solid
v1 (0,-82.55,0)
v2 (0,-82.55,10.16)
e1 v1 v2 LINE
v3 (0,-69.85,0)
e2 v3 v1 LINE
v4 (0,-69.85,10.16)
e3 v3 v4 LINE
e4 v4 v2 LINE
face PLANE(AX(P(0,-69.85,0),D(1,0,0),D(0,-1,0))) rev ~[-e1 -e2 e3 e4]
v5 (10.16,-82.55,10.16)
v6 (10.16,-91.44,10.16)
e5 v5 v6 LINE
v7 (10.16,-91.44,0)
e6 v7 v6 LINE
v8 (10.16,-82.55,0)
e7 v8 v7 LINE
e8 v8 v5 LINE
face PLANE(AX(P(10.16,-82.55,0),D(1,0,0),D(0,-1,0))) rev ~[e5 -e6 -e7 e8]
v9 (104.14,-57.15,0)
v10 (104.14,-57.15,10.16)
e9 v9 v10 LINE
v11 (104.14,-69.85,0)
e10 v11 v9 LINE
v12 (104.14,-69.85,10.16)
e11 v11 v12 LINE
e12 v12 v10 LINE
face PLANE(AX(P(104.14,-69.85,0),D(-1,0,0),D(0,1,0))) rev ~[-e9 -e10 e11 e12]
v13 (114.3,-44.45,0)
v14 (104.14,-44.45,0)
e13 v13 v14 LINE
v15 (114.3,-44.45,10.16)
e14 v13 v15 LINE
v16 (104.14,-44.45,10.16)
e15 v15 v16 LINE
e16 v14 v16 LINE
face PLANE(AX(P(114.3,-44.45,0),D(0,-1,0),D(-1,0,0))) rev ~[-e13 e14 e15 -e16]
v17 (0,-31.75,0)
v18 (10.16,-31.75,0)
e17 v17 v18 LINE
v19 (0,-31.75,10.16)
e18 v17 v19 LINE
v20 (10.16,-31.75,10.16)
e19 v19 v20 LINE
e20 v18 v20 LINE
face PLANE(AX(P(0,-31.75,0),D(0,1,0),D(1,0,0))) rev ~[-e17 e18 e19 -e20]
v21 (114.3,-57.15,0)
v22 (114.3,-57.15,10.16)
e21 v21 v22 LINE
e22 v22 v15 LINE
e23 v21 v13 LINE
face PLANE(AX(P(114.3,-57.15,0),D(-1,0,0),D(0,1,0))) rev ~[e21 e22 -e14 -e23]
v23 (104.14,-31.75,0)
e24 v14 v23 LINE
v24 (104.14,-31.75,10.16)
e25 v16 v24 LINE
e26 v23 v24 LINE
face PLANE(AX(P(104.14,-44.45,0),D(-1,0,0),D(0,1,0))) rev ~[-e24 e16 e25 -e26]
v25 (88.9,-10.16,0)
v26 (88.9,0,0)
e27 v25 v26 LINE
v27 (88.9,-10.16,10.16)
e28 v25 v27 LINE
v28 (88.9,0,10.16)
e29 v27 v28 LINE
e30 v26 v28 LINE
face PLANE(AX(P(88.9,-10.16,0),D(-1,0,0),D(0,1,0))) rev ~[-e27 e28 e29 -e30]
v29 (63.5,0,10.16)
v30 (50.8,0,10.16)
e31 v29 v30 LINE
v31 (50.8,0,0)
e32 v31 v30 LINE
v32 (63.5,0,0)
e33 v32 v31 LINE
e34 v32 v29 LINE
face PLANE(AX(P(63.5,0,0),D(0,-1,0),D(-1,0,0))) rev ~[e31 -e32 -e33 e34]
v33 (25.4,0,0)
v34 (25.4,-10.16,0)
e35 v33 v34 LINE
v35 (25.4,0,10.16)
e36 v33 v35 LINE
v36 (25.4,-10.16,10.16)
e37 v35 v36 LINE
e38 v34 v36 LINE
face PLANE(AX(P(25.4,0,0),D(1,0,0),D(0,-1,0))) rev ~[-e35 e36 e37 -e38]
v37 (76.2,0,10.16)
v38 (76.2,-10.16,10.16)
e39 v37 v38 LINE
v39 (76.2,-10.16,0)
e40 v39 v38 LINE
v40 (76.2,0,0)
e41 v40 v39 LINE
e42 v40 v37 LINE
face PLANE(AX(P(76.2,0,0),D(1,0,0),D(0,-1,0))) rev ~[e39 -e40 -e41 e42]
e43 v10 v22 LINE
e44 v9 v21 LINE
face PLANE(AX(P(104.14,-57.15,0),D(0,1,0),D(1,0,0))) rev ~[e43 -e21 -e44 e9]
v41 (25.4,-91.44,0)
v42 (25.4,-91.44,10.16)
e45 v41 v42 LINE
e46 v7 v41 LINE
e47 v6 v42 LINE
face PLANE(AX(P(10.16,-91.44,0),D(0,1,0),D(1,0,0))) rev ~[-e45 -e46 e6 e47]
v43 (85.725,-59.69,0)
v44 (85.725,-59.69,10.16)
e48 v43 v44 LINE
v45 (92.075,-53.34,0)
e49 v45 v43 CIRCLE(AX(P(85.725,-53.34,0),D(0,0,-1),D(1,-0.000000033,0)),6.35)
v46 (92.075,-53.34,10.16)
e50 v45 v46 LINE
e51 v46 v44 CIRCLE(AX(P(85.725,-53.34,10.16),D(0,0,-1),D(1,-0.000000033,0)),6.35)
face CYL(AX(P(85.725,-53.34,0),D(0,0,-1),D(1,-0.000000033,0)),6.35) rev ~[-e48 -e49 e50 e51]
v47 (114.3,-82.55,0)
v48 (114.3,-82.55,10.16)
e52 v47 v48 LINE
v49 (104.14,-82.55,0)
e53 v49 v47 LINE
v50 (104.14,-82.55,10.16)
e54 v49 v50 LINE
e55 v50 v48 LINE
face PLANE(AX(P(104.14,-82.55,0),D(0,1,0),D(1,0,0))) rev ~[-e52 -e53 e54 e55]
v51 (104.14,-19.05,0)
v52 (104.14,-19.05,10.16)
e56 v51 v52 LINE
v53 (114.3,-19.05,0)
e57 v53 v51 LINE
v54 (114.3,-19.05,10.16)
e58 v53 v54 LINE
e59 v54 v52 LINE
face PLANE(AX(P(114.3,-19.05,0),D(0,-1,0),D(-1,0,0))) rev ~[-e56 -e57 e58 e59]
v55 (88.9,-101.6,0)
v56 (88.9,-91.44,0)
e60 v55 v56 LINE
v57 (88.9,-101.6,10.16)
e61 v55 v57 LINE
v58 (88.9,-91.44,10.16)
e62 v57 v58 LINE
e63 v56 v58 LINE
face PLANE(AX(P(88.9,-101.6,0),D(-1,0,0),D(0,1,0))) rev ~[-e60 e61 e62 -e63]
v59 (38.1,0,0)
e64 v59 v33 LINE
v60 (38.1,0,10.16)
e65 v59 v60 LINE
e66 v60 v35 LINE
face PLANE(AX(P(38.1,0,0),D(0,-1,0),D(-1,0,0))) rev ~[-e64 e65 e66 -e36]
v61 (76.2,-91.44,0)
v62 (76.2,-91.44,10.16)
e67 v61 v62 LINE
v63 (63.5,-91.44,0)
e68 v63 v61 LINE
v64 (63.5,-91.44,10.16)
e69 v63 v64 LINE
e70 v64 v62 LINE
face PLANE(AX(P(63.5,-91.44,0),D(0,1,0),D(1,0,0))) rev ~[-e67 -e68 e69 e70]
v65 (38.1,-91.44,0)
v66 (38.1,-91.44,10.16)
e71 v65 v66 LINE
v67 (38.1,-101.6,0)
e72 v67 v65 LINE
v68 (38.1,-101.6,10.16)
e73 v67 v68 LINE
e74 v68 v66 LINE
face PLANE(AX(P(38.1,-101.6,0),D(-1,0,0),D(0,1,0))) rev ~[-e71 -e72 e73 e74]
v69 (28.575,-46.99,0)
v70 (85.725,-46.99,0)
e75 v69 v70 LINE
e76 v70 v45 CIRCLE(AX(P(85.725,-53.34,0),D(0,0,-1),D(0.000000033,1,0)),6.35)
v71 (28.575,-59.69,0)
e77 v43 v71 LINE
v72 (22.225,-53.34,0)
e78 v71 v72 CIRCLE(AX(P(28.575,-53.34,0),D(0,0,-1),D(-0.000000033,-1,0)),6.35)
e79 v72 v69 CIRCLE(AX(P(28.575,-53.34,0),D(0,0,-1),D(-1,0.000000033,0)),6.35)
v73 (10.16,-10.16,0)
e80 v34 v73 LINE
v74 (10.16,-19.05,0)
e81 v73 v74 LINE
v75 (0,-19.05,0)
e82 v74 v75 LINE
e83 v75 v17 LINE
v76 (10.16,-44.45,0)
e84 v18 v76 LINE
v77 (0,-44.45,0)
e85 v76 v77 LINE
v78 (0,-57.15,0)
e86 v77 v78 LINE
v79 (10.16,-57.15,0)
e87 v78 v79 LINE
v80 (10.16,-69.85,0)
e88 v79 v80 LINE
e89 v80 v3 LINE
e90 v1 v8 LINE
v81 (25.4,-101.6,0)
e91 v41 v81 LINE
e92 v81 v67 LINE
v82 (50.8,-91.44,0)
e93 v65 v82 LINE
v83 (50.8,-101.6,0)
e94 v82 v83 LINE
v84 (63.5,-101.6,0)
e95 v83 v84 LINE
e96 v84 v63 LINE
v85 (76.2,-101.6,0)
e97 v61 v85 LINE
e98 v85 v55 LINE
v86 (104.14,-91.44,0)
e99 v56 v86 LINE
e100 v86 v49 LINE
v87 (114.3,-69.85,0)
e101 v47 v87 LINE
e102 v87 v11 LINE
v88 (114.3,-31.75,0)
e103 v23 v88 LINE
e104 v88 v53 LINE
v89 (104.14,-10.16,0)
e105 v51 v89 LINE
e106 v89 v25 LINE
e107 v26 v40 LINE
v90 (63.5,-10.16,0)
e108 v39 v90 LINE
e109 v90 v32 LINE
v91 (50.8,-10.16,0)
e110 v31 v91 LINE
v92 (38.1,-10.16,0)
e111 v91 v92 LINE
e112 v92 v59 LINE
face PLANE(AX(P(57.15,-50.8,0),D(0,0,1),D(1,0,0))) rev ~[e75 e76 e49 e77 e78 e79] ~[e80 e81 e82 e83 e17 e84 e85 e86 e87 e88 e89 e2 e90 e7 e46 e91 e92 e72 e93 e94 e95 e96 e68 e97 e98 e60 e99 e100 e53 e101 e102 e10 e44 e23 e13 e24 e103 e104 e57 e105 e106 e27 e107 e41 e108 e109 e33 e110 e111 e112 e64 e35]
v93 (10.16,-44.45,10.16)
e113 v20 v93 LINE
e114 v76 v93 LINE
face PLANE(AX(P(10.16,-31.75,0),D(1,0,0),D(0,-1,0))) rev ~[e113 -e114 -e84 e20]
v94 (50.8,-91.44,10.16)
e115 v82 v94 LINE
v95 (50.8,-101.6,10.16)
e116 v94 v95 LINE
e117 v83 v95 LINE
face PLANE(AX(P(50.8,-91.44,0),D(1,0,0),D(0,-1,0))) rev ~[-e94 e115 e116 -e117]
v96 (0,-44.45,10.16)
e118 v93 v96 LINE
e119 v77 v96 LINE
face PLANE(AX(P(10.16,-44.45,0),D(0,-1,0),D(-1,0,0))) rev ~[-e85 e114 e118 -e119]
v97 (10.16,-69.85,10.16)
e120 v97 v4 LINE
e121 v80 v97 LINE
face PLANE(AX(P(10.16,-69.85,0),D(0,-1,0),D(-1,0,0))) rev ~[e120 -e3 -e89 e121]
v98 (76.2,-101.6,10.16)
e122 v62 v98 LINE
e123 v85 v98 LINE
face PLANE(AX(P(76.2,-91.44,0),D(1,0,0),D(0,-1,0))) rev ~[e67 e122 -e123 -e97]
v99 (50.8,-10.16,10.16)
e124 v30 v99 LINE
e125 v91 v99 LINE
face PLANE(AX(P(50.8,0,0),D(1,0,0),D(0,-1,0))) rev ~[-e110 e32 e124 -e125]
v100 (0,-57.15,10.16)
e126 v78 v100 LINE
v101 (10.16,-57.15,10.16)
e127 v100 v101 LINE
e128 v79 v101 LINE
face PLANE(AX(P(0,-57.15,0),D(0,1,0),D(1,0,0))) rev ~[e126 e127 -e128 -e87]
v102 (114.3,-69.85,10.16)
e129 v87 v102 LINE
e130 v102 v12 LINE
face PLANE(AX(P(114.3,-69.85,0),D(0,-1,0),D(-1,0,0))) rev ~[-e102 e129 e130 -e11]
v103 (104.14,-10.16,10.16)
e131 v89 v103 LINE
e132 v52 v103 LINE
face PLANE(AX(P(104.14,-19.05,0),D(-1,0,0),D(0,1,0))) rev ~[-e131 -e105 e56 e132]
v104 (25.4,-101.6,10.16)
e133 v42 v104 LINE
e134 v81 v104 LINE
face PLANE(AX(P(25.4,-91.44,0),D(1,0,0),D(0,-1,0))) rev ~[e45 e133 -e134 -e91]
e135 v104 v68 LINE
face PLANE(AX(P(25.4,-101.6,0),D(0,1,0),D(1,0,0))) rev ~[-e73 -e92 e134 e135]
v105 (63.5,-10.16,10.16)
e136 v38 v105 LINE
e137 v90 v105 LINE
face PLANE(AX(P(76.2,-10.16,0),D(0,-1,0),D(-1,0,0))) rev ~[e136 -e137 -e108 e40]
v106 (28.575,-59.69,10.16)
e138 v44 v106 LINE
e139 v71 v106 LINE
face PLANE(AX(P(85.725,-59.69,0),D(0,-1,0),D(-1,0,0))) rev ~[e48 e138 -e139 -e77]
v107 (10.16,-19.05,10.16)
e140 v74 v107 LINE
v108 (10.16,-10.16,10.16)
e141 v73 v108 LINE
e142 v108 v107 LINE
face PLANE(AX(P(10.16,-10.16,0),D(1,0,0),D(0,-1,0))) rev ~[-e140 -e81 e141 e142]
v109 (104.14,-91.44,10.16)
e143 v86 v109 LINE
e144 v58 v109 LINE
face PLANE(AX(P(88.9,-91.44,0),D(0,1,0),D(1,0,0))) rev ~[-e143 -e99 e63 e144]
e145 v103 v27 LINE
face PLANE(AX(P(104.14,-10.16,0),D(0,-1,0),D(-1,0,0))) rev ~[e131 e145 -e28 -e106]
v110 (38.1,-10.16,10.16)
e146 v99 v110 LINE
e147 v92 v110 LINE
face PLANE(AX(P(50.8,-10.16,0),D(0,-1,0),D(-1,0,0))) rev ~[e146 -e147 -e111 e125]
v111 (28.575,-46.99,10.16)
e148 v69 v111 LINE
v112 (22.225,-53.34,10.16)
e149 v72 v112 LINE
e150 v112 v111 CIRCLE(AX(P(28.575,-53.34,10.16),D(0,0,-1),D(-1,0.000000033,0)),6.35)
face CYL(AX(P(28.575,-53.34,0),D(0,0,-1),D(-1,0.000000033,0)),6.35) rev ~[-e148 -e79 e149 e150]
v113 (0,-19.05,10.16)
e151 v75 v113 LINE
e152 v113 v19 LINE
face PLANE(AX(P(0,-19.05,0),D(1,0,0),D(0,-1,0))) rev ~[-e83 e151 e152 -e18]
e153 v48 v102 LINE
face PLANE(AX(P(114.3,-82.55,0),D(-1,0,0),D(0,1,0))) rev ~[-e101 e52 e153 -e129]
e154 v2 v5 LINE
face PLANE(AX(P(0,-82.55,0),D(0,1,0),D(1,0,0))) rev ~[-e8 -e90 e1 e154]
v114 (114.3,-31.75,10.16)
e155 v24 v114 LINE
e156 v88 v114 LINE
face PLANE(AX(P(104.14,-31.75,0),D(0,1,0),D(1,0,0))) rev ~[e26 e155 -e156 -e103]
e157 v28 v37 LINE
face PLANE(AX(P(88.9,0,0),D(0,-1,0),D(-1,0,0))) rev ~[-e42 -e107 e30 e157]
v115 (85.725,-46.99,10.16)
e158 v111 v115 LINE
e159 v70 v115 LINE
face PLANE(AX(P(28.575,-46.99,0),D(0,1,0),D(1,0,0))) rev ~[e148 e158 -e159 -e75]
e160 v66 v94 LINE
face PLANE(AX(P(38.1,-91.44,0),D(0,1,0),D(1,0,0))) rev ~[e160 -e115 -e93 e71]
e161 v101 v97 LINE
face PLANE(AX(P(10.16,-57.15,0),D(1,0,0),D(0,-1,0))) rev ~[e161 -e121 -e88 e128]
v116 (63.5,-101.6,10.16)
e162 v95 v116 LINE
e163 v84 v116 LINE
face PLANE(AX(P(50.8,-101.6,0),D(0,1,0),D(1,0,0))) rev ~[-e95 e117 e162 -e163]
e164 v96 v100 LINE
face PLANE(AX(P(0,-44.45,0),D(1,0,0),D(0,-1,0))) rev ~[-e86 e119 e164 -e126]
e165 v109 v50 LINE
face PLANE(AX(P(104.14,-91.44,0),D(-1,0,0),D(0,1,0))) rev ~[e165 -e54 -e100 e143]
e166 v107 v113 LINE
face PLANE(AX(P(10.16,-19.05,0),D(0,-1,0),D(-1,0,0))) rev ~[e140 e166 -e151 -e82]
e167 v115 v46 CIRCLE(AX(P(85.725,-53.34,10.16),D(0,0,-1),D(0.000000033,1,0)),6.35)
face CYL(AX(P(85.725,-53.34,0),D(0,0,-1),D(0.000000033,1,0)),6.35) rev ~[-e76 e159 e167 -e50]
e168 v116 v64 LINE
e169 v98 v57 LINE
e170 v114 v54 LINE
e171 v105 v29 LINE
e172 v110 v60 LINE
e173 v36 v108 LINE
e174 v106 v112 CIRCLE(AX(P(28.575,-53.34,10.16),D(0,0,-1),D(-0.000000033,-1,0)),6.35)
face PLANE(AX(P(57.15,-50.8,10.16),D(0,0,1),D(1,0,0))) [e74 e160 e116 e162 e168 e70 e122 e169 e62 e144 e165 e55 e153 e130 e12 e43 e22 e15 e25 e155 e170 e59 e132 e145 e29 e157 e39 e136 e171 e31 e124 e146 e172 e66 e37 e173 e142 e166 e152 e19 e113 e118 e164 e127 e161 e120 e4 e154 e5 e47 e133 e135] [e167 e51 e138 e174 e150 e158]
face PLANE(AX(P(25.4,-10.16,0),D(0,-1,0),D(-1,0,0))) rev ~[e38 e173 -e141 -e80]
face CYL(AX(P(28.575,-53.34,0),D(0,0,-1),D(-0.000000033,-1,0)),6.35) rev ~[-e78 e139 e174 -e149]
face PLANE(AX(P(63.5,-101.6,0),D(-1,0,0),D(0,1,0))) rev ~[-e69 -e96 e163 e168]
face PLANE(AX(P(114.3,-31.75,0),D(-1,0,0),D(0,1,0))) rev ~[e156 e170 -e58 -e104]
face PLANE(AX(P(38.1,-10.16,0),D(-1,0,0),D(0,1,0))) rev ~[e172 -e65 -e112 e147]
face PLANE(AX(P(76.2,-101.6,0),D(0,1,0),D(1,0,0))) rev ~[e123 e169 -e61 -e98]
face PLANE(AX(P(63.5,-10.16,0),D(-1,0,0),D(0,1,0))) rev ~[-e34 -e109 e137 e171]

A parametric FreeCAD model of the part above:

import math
import FreeCAD as App
import Part
import Sketcher
from FreeCAD import Vector
Q = App.Units.Quantity


def add_polygon(sketch, points):
    """Adds a closed chain of lines whose ends are joined by coincident constraints."""
    first, n = sketch.GeometryCount, len(points)
    for a, b in zip(points, points[1:] + points[:1]):
        sketch.addGeometry(Part.LineSegment(App.Vector(*a, 0), App.Vector(*b, 0)), False)
    for i in range(n):
        sketch.addConstraint(Sketcher.Constraint("Coincident", first + i, 2, first + (i + 1) % n, 1))

doc = App.newDocument("Part")
body = doc.addObject("PartDesign::Body", "Body")

# Sketch on XY plane
sketch1 = body.newObject("Sketcher::SketchObject", "Sketch")
sketch1.AttachmentSupport = (doc.getObject("XY_Plane"), [""])
sketch1.MapMode = "FlatFace"
add_polygon(sketch1, [(38.1, 0), (25.4, 0), (25.4, -10.16), (10.16, -10.16), (10.16, -19.05), (0, -19.05), (0, -31.75), (10.16, -31.75), (10.16, -44.45), (0, -44.45), (0, -57.15), (10.16, -57.15), (10.16, -69.85), (0, -69.85), (0, -82.55), (10.16, -82.55), (10.16, -91.44), (25.4, -91.44), (25.4, -101.6), (38.1, -101.6), (38.1, -91.44), (50.8, -91.44), (50.8, -101.6), (63.5, -101.6), (63.5, -91.44), (76.2, -91.44), (76.2, -101.6), (88.9, -101.6), (88.9, -91.44), (104.14, -91.44), (104.14, -82.55), (114.3, -82.55), (114.3, -69.85), (104.14, -69.85), (104.14, -57.15), (114.3, -57.15), (114.3, -44.45), (104.14, -44.45), (104.14, -31.75), (114.3, -31.75), (114.3, -19.05), (104.14, -19.05), (104.14, -10.16), (88.9, -10.16), (88.9, 0), (76.2, 0), (76.2, -10.16), (63.5, -10.16), (63.5, 0), (50.8, 0), (50.8, -10.16), (38.1, -10.16)])  # lines 0-51
sketch1.addGeometry(Part.ArcOfCircle(Part.Circle(Vector(28.575, -53.34, 0), Vector(0, 0, 1), 6.35), math.radians(-179.999998), math.radians(-90.000002)), False)  # 52
sketch1.addGeometry(Part.ArcOfCircle(Part.Circle(Vector(28.575, -53.34, 0), Vector(0, 0, 1), 6.35), math.radians(90.000002), math.radians(179.999998)), False)  # 53
sketch1.addGeometry(Part.LineSegment(Vector(28.575, -46.99, 0), Vector(85.725, -46.99, 0)), False)  # 54
sketch1.addGeometry(Part.ArcOfCircle(Part.Circle(Vector(85.725, -53.34, 0), Vector(0, 0, 1), 6.35), math.radians(0.000002), math.radians(89.999998)), False)  # 55
sketch1.addGeometry(Part.ArcOfCircle(Part.Circle(Vector(85.725, -53.34, 0), Vector(0, 0, 1), 6.35), math.radians(-89.999998), math.radians(-0.000002)), False)  # 56
sketch1.addGeometry(Part.LineSegment(Vector(85.725, -59.69, 0), Vector(28.575, -59.69, 0)), False)  # 57
sketch1.addConstraint(Sketcher.Constraint("Tangent", 52, 1, 53, 2))
sketch1.addConstraint(Sketcher.Constraint("Tangent", 53, 1, 54, 1))
sketch1.addConstraint(Sketcher.Constraint("Tangent", 54, 2, 55, 2))
sketch1.addConstraint(Sketcher.Constraint("Tangent", 55, 1, 56, 2))
sketch1.addConstraint(Sketcher.Constraint("Tangent", 56, 1, 57, 1))
sketch1.addConstraint(Sketcher.Constraint("Tangent", 57, 2, 52, 2))
sketch1.addConstraint(Sketcher.Constraint("Horizontal", 0))
sketch1.addConstraint(Sketcher.Constraint("Vertical", 1))
sketch1.addConstraint(Sketcher.Constraint("Horizontal", 2))
sketch1.addConstraint(Sketcher.Constraint("Vertical", 3))
sketch1.addConstraint(Sketcher.Constraint("Horizontal", 4))
sketch1.addConstraint(Sketcher.Constraint("Vertical", 5))
sketch1.addConstraint(Sketcher.Constraint("Horizontal", 6))
sketch1.addConstraint(Sketcher.Constraint("Vertical", 7))
sketch1.addConstraint(Sketcher.Constraint("Horizontal", 8))
sketch1.addConstraint(Sketcher.Constraint("Vertical", 9))
sketch1.addConstraint(Sketcher.Constraint("Horizontal", 10))
sketch1.addConstraint(Sketcher.Constraint("Vertical", 11))
sketch1.addConstraint(Sketcher.Constraint("Horizontal", 12))
sketch1.addConstraint(Sketcher.Constraint("Vertical", 13))
sketch1.addConstraint(Sketcher.Constraint("Horizontal", 14))
sketch1.addConstraint(Sketcher.Constraint("Vertical", 15))
sketch1.addConstraint(Sketcher.Constraint("Horizontal", 16))
sketch1.addConstraint(Sketcher.Constraint("Vertical", 17))
sketch1.addConstraint(Sketcher.Constraint("Horizontal", 18))
sketch1.addConstraint(Sketcher.Constraint("Vertical", 19))
sketch1.addConstraint(Sketcher.Constraint("Horizontal", 20))
sketch1.addConstraint(Sketcher.Constraint("Vertical", 21))
sketch1.addConstraint(Sketcher.Constraint("Horizontal", 22))
sketch1.addConstraint(Sketcher.Constraint("Vertical", 23))
sketch1.addConstraint(Sketcher.Constraint("Horizontal", 24))
sketch1.addConstraint(Sketcher.Constraint("Vertical", 25))
sketch1.addConstraint(Sketcher.Constraint("Horizontal", 26))
sketch1.addConstraint(Sketcher.Constraint("Vertical", 27))
sketch1.addConstraint(Sketcher.Constraint("Horizontal", 28))
sketch1.addConstraint(Sketcher.Constraint("Vertical", 29))
sketch1.addConstraint(Sketcher.Constraint("Horizontal", 30))
sketch1.addConstraint(Sketcher.Constraint("Vertical", 31))
sketch1.addConstraint(Sketcher.Constraint("Horizontal", 32))
sketch1.addConstraint(Sketcher.Constraint("Vertical", 33))
sketch1.addConstraint(Sketcher.Constraint("Horizontal", 34))
sketch1.addConstraint(Sketcher.Constraint("Vertical", 35))
sketch1.addConstraint(Sketcher.Constraint("Horizontal", 36))
sketch1.addConstraint(Sketcher.Constraint("Vertical", 37))
sketch1.addConstraint(Sketcher.Constraint("Horizontal", 38))
sketch1.addConstraint(Sketcher.Constraint("Vertical", 39))
sketch1.addConstraint(Sketcher.Constraint("Horizontal", 40))
sketch1.addConstraint(Sketcher.Constraint("Vertical", 41))
sketch1.addConstraint(Sketcher.Constraint("Horizontal", 42))
sketch1.addConstraint(Sketcher.Constraint("Vertical", 43))
sketch1.addConstraint(Sketcher.Constraint("Horizontal", 44))
sketch1.addConstraint(Sketcher.Constraint("Vertical", 45))
sketch1.addConstraint(Sketcher.Constraint("Horizontal", 46))
sketch1.addConstraint(Sketcher.Constraint("Vertical", 47))
sketch1.addConstraint(Sketcher.Constraint("Horizontal", 48))
sketch1.addConstraint(Sketcher.Constraint("Vertical", 49))
sketch1.addConstraint(Sketcher.Constraint("Horizontal", 50))
sketch1.addConstraint(Sketcher.Constraint("Vertical", 51))
sketch1.addConstraint(Sketcher.Constraint("Horizontal", 54))
sketch1.addConstraint(Sketcher.Constraint("Horizontal", 57))
sketch1.addConstraint(Sketcher.Constraint("Equal", 52, 53))
sketch1.addConstraint(Sketcher.Constraint("Equal", 53, 55))
sketch1.addConstraint(Sketcher.Constraint("PointOnObject", 0, 2, -1))
sketch1.addConstraint(Sketcher.Constraint("PointOnObject", 4, 2, -2))
sketch1.addConstraint(Sketcher.Constraint("PointOnObject", 8, 2, -2))
sketch1.addConstraint(Sketcher.Constraint("PointOnObject", 12, 2, -2))
sketch1.addConstraint(Sketcher.Constraint("PointOnObject", 43, 2, -1))
sketch1.addConstraint(Sketcher.Constraint("PointOnObject", 47, 2, -1))
sketch1.addConstraint(Sketcher.Constraint("Horizontal", 16, 2, 19, 2))
sketch1.addConstraint(Sketcher.Constraint("Horizontal", 18, 2, 21, 2))
sketch1.addConstraint(Sketcher.Constraint("Horizontal", 20, 2, 23, 2))
sketch1.addConstraint(Sketcher.Constraint("Horizontal", 22, 2, 25, 2))
sketch1.addConstraint(Sketcher.Constraint("Horizontal", 24, 2, 27, 2))
sketch1.addConstraint(Sketcher.Constraint("Horizontal", 14, 2, 29, 2))
sketch1.addConstraint(Sketcher.Constraint("Horizontal", 12, 2, 31, 2))
sketch1.addConstraint(Sketcher.Constraint("Horizontal", 10, 2, 33, 2))
sketch1.addConstraint(Sketcher.Constraint("Horizontal", 8, 2, 35, 2))
sketch1.addConstraint(Sketcher.Constraint("Horizontal", 6, 2, 37, 2))
sketch1.addConstraint(Sketcher.Constraint("Horizontal", 4, 2, 39, 2))
sketch1.addConstraint(Sketcher.Constraint("Horizontal", 2, 2, 41, 2))
sketch1.addConstraint(Sketcher.Constraint("Horizontal", 42, 2, 45, 2))
sketch1.addConstraint(Sketcher.Constraint("Horizontal", 46, 2, 49, 2))
sketch1.addConstraint(Sketcher.Constraint("Horizontal", 56, 3, 52, 1))
sketch1.addConstraint(Sketcher.Constraint("Horizontal", 52, 1, 55, 1))
sketch1.addConstraint(Sketcher.Constraint("Vertical", 3, 2, 6, 2))
sketch1.addConstraint(Sketcher.Constraint("Vertical", 7, 2, 10, 2))
sketch1.addConstraint(Sketcher.Constraint("Vertical", 11, 2, 14, 2))
sketch1.addConstraint(Sketcher.Constraint("Vertical", 1, 2, 16, 2))
sketch1.addConstraint(Sketcher.Constraint("Vertical", 29, 2, 32, 2))
sketch1.addConstraint(Sketcher.Constraint("Vertical", 31, 2, 34, 2))
sketch1.addConstraint(Sketcher.Constraint("Vertical", 33, 2, 36, 2))
sketch1.addConstraint(Sketcher.Constraint("Vertical", 35, 2, 38, 2))
sketch1.addConstraint(Sketcher.Constraint("Vertical", 37, 2, 40, 2))
sketch1.addConstraint(Sketcher.Constraint("Vertical", 27, 2, 42, 2))
sketch1.addConstraint(Sketcher.Constraint("Vertical", 25, 2, 44, 2))
sketch1.addConstraint(Sketcher.Constraint("Vertical", 23, 2, 46, 2))
sketch1.addConstraint(Sketcher.Constraint("Vertical", 21, 2, 48, 2))
sketch1.addConstraint(Sketcher.Constraint("Vertical", 19, 2, 50, 2))
sketch1.addConstraint(Sketcher.Constraint("Equal", 18, 20))
sketch1.addConstraint(Sketcher.Constraint("Equal", 20, 22))
sketch1.addConstraint(Sketcher.Constraint("Equal", 22, 24))
sketch1.addConstraint(Sketcher.Constraint("Equal", 24, 26))
sketch1.addConstraint(Sketcher.Constraint("Equal", 16, 28))
sketch1.addConstraint(Sketcher.Constraint("Equal", 14, 30))
sketch1.addConstraint(Sketcher.Constraint("Equal", 40, 1))
sketch1.addConstraint(Sketcher.Constraint("Equal", 50, 5))
sketch1.addConstraint(Sketcher.Constraint("Equal", 5, 7))
sketch1.addConstraint(Sketcher.Constraint("Equal", 7, 9))
sketch1.addConstraint(Sketcher.Constraint("Equal", 9, 11))
sketch1.addConstraint(Sketcher.Constraint("Equal", 11, 13))
sketch1.addConstraint(Sketcher.Constraint("Equal", 3, 15))
sketch1.addConstraint(Sketcher.Constraint("Equal", 1, 17))
sketch1.addConstraint(Sketcher.Constraint("Radius", 52, Q("0.25 in")))
sketch1.addConstraint(Sketcher.Constraint("DistanceX", 0, 2, 0, 1, Q("0.5 in")))
sketch1.addConstraint(Sketcher.Constraint("DistanceX", 2, 2, 2, 1, Q("0.6 in")))
sketch1.addConstraint(Sketcher.Constraint("DistanceX", 4, 2, 4, 1, Q("0.4 in")))
sketch1.addConstraint(Sketcher.Constraint("DistanceY", 17, 2, -1, 1, Q("4 in")))
sketch1.addConstraint(Sketcher.Constraint("DistanceX", 54, 1, 54, 2, Q("2.25 in")))
sketch1.addConstraint(Sketcher.Constraint("DistanceY", 52, 3, -1, 1, Q("2.1 in")))
sketch1.addConstraint(Sketcher.Constraint("DistanceX", -1, 1, 52, 3, Q("1.125 in")))
pad1 = body.newObject("PartDesign::Pad", "Pad")
pad1.Profile = sketch1
pad1.Length = Q("0.4 in")

doc.recompute()
